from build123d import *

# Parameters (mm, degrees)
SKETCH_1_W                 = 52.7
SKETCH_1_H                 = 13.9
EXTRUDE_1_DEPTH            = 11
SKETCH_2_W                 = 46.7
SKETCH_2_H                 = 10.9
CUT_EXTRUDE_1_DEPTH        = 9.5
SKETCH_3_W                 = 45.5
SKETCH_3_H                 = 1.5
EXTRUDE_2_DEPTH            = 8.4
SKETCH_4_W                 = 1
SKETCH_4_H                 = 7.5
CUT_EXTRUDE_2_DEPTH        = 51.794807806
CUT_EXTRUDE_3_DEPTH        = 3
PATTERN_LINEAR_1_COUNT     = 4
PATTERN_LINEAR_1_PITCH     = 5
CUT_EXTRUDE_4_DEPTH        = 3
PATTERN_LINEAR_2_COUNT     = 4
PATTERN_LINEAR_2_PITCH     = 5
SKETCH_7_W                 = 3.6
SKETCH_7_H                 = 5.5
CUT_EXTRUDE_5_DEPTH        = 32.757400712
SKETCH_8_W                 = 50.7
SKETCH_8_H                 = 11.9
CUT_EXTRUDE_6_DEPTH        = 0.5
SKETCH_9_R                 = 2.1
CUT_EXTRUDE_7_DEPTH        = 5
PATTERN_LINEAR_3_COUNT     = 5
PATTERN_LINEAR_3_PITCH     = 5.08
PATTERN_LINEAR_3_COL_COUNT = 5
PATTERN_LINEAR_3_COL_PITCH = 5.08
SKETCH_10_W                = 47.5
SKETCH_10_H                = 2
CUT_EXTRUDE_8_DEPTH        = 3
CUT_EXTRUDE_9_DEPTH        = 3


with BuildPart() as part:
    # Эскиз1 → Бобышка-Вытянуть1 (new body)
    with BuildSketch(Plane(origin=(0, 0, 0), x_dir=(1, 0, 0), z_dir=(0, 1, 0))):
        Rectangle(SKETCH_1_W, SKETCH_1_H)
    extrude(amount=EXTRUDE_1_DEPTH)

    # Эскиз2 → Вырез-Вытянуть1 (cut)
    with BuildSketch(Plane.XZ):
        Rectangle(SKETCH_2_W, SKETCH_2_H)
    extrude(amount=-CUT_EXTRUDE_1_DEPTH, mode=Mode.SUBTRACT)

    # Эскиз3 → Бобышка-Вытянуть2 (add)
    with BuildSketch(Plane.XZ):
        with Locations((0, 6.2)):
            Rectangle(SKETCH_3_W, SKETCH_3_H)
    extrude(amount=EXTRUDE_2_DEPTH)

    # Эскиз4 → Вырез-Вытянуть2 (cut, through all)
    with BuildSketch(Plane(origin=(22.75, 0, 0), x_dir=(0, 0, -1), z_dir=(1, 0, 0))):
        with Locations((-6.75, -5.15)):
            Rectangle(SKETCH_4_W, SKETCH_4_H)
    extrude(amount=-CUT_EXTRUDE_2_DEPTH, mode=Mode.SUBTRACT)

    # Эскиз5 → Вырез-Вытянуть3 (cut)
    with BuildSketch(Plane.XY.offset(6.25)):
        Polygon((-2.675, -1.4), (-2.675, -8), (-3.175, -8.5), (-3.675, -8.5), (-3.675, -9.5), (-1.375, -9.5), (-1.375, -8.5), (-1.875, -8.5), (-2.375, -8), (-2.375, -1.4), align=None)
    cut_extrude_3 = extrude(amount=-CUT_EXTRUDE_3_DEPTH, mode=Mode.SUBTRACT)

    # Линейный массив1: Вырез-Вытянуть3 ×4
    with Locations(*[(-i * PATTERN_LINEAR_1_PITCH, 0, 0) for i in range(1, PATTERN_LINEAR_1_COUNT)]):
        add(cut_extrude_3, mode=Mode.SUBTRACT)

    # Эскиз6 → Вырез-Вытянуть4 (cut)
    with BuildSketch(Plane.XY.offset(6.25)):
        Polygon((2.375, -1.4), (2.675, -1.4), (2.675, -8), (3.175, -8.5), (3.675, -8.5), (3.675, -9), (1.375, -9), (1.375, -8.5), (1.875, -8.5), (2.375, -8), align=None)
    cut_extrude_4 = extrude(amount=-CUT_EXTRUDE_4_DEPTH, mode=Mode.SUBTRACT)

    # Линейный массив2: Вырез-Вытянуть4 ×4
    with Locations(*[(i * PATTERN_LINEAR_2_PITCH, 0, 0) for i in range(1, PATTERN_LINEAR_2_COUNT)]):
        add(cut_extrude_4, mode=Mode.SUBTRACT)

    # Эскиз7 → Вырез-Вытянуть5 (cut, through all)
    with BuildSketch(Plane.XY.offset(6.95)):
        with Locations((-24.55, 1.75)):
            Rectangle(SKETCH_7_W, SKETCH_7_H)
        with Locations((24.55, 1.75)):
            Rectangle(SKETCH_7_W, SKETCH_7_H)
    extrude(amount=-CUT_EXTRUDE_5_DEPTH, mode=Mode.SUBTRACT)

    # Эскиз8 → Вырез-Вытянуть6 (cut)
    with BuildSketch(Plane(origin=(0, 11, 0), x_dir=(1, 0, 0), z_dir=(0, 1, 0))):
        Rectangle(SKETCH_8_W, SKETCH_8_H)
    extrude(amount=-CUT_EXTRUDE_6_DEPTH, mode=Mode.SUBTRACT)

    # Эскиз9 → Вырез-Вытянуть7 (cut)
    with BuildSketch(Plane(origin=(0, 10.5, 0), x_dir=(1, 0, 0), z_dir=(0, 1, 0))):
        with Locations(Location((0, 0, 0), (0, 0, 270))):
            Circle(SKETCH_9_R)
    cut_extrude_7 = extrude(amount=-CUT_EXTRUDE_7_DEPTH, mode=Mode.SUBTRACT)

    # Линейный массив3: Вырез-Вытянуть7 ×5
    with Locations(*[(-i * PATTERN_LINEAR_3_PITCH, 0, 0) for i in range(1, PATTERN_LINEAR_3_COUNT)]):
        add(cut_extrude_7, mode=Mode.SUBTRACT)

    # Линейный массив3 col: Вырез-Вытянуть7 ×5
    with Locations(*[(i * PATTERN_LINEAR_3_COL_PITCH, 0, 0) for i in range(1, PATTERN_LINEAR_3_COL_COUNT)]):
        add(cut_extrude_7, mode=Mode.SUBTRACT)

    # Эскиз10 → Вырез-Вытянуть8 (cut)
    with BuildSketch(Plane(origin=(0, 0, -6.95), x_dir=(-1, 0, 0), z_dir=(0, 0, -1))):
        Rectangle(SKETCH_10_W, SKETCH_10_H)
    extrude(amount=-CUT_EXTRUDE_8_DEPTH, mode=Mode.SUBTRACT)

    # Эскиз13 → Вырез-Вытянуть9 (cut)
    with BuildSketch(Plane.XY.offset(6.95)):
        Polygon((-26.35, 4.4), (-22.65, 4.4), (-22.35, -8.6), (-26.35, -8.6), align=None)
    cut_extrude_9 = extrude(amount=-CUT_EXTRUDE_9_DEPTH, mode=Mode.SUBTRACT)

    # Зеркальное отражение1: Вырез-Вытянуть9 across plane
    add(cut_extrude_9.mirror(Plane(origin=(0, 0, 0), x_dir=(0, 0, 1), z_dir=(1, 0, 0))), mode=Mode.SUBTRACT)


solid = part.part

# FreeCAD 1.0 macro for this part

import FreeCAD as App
import Part
import Sketcher
from FreeCAD import Vector
Q = App.Units.Quantity


def add_polygon(sketch, points):
    """Adds a closed chain of lines whose ends are joined by coincident constraints."""
    first, n = sketch.GeometryCount, len(points)
    for a, b in zip(points, points[1:] + points[:1]):
        sketch.addGeometry(Part.LineSegment(App.Vector(*a, 0), App.Vector(*b, 0)), False)
    for i in range(n):
        sketch.addConstraint(Sketcher.Constraint("Coincident", first + i, 2, first + (i + 1) % n, 1))

doc = App.newDocument("Part")
params = doc.addObject("Spreadsheet::Sheet", "Params")
for row, (alias, value) in enumerate([
    ("sketch1_width", "52.7 mm"),
    ("sketch1_height", "13.9 mm"),
    ("pad1_length", "11 mm"),
    ("sketch2_width", "46.7 mm"),
    ("sketch2_height", "10.9 mm"),
    ("pocket1_length", "9.5 mm"),
    ("sketch3_width", "45.5 mm"),
    ("sketch3_height", "1.5 mm"),
    ("pad2_length", "8.4 mm"),
    ("sketch4_height", "1 mm"),
    ("sketch4_width", "7.5 mm"),
    ("sketch5_height", "1 mm"),
    ("sketch5_width", "0.5 mm"),
    ("sketch5_width2", "2.3 mm"),
    ("sketch5_width3", "0.3 mm"),
    ("sketch5_height2", "6.6 mm"),
    ("pocket3_length", "3 mm"),
    ("linearpattern_pitch", "5 mm"),
    ("sketch6_width", "0.3 mm"),
    ("sketch6_width2", "0.5 mm"),
    ("sketch6_width3", "2.3 mm"),
    ("sketch6_height", "6.6 mm"),
    ("pocket4_length", "3 mm"),
    ("linearpattern2_pitch", "5 mm"),
    ("sketch7_width", "3.6 mm"),
    ("sketch7_height", "5.5 mm"),
    ("sketch8_width", "50.7 mm"),
    ("sketch8_height", "11.9 mm"),
    ("pocket6_length", "0.5 mm"),
    ("sketch9_diameter", "4.2 mm"),
    ("pocket7_length", "5 mm"),
    ("linearpattern3_pitch", "5.08 mm"),
    ("linearpattern4_pitch", "5.08 mm"),
    ("sketch10_height", "2 mm"),
    ("sketch10_width", "47.5 mm"),
    ("pocket8_length", "3 mm"),
    ("sketch11_width", "4 mm"),
    ("sketch11_height", "13 mm"),
    ("sketch11_width2", "3.7 mm"),
    ("pocket9_length", "3 mm"),
], start=1):
    params.set(f"A{row}", alias)
    params.set(f"B{row}", "=" + value)
    params.setAlias(f"B{row}", alias)

body = doc.addObject("PartDesign::Body", "Body")

sketch1 = body.newObject("Sketcher::SketchObject", "Sketch")
sketch1.AttachmentSupport = (doc.getObject("XZ_Plane"), [""])
sketch1.MapMode = "FlatFace"
add_polygon(sketch1, [(-26, -7), (-26, 7), (26, 7), (26, -7)])
sketch1.addConstraint(Sketcher.Constraint("Vertical", 0))
sketch1.addConstraint(Sketcher.Constraint("Horizontal", 1))
sketch1.addConstraint(Sketcher.Constraint("Vertical", 2))
sketch1.addConstraint(Sketcher.Constraint("Horizontal", 3))
sketch1.addConstraint(Sketcher.Constraint("Symmetric", 0, 2, 2, 2, -1, 1))
sketch1.addConstraint(Sketcher.Constraint("DistanceX", 1, 1, 1, 2, Q("52.7 mm")))
sketch1.addConstraint(Sketcher.Constraint("DistanceY", 0, 1, 0, 2, Q("13.9 mm")))
sketch1.setExpression("Constraints[9]", "Params.sketch1_width")
sketch1.setExpression("Constraints[10]", "Params.sketch1_height")
pad1 = body.newObject("PartDesign::Pad", "Pad")
pad1.Profile = sketch1
pad1.setExpression("Length", "Params.pad1_length")
pad1.Reversed = True

sketch2 = body.newObject("Sketcher::SketchObject", "Sketch001")
sketch2.AttachmentSupport = (doc.getObject("XZ_Plane"), [""])
sketch2.MapMode = "FlatFace"
add_polygon(sketch2, [(-23, 5), (-23, -5), (23, -5), (23, 5)])
sketch2.addConstraint(Sketcher.Constraint("Vertical", 0))
sketch2.addConstraint(Sketcher.Constraint("Horizontal", 1))
sketch2.addConstraint(Sketcher.Constraint("Vertical", 2))
sketch2.addConstraint(Sketcher.Constraint("Horizontal", 3))
sketch2.addConstraint(Sketcher.Constraint("Symmetric", 0, 2, 2, 2, -1, 1))
sketch2.addConstraint(Sketcher.Constraint("DistanceX", 1, 1, 1, 2, Q("46.7 mm")))
sketch2.addConstraint(Sketcher.Constraint("DistanceY", 0, 2, 0, 1, Q("10.9 mm")))
sketch2.setExpression("Constraints[9]", "Params.sketch2_width")
sketch2.setExpression("Constraints[10]", "Params.sketch2_height")
pocket1 = body.newObject("PartDesign::Pocket", "Pocket")
pocket1.Profile = sketch2
pocket1.setExpression("Length", "Params.pocket1_length")

sketch3 = body.newObject("Sketcher::SketchObject", "Sketch002")
sketch3.AttachmentSupport = (doc.getObject("XZ_Plane"), [""])
sketch3.MapMode = "FlatFace"
add_polygon(sketch3, [(-22.8, 7), (-22.8, 5.5), (22.8, 5.5), (22.8, 7)])
sketch3.addConstraint(Sketcher.Constraint("Vertical", 0))
sketch3.addConstraint(Sketcher.Constraint("Horizontal", 1))
sketch3.addConstraint(Sketcher.Constraint("Vertical", 2))
sketch3.addConstraint(Sketcher.Constraint("Horizontal", 3))
sketch3.addConstraint(Sketcher.Constraint("DistanceX", 1, 1, 1, 2, Q("45.5 mm")))
sketch3.addConstraint(Sketcher.Constraint("DistanceY", 0, 2, 0, 1, Q("1.5 mm")))
sketch3.addConstraint(Sketcher.Constraint("DistanceX", 0, 2, -1, 1, Q("22.75 mm")))
sketch3.addConstraint(Sketcher.Constraint("DistanceY", -1, 1, 0, 2, Q("5.45 mm")))
sketch3.setExpression("Constraints[8]", "Params.sketch3_width")
sketch3.setExpression("Constraints[9]", "Params.sketch3_height")
pad2 = body.newObject("PartDesign::Pad", "Pad001")
pad2.Profile = sketch3
pad2.setExpression("Length", "Params.pad2_length")

sketch4 = body.newObject("Sketcher::SketchObject", "Sketch003")
sketch4.AttachmentSupport = (doc.getObject("YZ_Plane"), [""])
sketch4.MapMode = "FlatFace"
sketch4.AttachmentOffset = App.Placement(Vector(0, 0, 22.75), App.Rotation())
add_polygon(sketch4, [(-1.4, 7.2), (-8.9, 7.2), (-8.9, 6.2), (-1.4, 6.2)])
sketch4.addConstraint(Sketcher.Constraint("Horizontal", 0))
sketch4.addConstraint(Sketcher.Constraint("Vertical", 1))
sketch4.addConstraint(Sketcher.Constraint("Horizontal", 2))
sketch4.addConstraint(Sketcher.Constraint("Vertical", 3))
sketch4.addConstraint(Sketcher.Constraint("DistanceY", 1, 2, 1, 1, Q("1 mm")))
sketch4.addConstraint(Sketcher.Constraint("DistanceX", 0, 2, 0, 1, Q("7.5 mm")))
sketch4.addConstraint(Sketcher.Constraint("DistanceX", 0, 2, -1, 1, Q("8.9 mm")))
sketch4.addConstraint(Sketcher.Constraint("DistanceY", -1, 1, 0, 2, Q("7.25 mm")))
sketch4.setExpression("Constraints[8]", "Params.sketch4_height")
sketch4.setExpression("Constraints[9]", "Params.sketch4_width")
pocket2 = body.newObject("PartDesign::Pocket", "Pocket001")
pocket2.Profile = sketch4
pocket2.Type = "ThroughAll"

sketch5 = body.newObject("Sketcher::SketchObject", "Sketch004")
sketch5.AttachmentSupport = (doc.getObject("XY_Plane"), [""])
sketch5.MapMode = "FlatFace"
sketch5.AttachmentOffset = App.Placement(Vector(0, 0, 6.25), App.Rotation())
add_polygon(sketch5, [(-2.67, -1.4), (-2.67, -8), (-3.17, -8.5), (-3.67, -8.5), (-3.67, -9.5), (-1.38, -9.5), (-1.38, -8.5), (-1.88, -8.5), (-2.38, -8), (-2.38, -1.4)])
sketch5.addConstraint(Sketcher.Constraint("Vertical", 0))
sketch5.addConstraint(Sketcher.Constraint("Horizontal", 2))
sketch5.addConstraint(Sketcher.Constraint("Vertical", 3))
sketch5.addConstraint(Sketcher.Constraint("Horizontal", 4))
sketch5.addConstraint(Sketcher.Constraint("Vertical", 5))
sketch5.addConstraint(Sketcher.Constraint("Horizontal", 6))
sketch5.addConstraint(Sketcher.Constraint("Vertical", 8))
sketch5.addConstraint(Sketcher.Constraint("Horizontal", 9))
sketch5.addConstraint(Sketcher.Constraint("Perpendicular", 1, 7))
sketch5.addConstraint(Sketcher.Constraint("Horizontal", 2, 2, 5, 2))
sketch5.addConstraint(Sketcher.Constraint("Horizontal", 0, 2, 7, 2))
sketch5.addConstraint(Sketcher.Constraint("Equal", 2, 6))
sketch5.addConstraint(Sketcher.Constraint("Equal", 1, 7))
sketch5.addConstraint(Sketcher.Constraint("DistanceY", 3, 2, 3, 1, Q("1 mm")))
sketch5.addConstraint(Sketcher.Constraint("DistanceX", 2, 2, 2, 1, Q("0.5 mm")))
sketch5.addConstraint(Sketcher.Constraint("DistanceX", 4, 1, 4, 2, Q("2.3 mm")))
sketch5.addConstraint(Sketcher.Constraint("DistanceX", 9, 2, 9, 1, Q("0.3 mm")))
sketch5.addConstraint(Sketcher.Constraint("DistanceY", 0, 2, 0, 1, Q("6.6 mm")))
sketch5.addConstraint(Sketcher.Constraint("DistanceY", 0, 2, -1, 1, Q("8 mm")))
sketch5.addConstraint(Sketcher.Constraint("DistanceX", 0, 2, -1, 1, Q("2.675 mm")))
sketch5.setExpression("Constraints[23]", "Params.sketch5_height")
sketch5.setExpression("Constraints[24]", "Params.sketch5_width")
sketch5.setExpression("Constraints[25]", "Params.sketch5_width2")
sketch5.setExpression("Constraints[26]", "Params.sketch5_width3")
sketch5.setExpression("Constraints[27]", "Params.sketch5_height2")
pocket3 = body.newObject("PartDesign::Pocket", "Pocket002")
pocket3.Profile = sketch5
pocket3.setExpression("Length", "Params.pocket3_length")
doc.recompute()

linearpattern = body.newObject("PartDesign::LinearPattern", "LinearPattern")
linearpattern.Originals = [pocket3]
linearpattern.Direction = (doc.getObject("X_Axis"), [""])
linearpattern.Mode = "offset"
linearpattern.setExpression("Offset", "Params.linearpattern_pitch")
linearpattern.Occurrences = 4
linearpattern.Reversed = True
body.Tip = linearpattern

sketch6 = body.newObject("Sketcher::SketchObject", "Sketch005")
sketch6.AttachmentSupport = (doc.getObject("XY_Plane"), [""])
sketch6.MapMode = "FlatFace"
sketch6.AttachmentOffset = App.Placement(Vector(0, 0, 6.25), App.Rotation())
add_polygon(sketch6, [(2.67, -1.4), (2.38, -1.4), (2.38, -8), (1.88, -8.5), (1.38, -8.5), (1.38, -9), (3.67, -9), (3.67, -8.5), (3.17, -8.5), (2.67, -8)])
sketch6.addConstraint(Sketcher.Constraint("Horizontal", 0))
sketch6.addConstraint(Sketcher.Constraint("Vertical", 1))
sketch6.addConstraint(Sketcher.Constraint("Horizontal", 3))
sketch6.addConstraint(Sketcher.Constraint("Vertical", 4))
sketch6.addConstraint(Sketcher.Constraint("Horizontal", 5))
sketch6.addConstraint(Sketcher.Constraint("Vertical", 6))
sketch6.addConstraint(Sketcher.Constraint("Horizontal", 7))
sketch6.addConstraint(Sketcher.Constraint("Vertical", 9))
sketch6.addConstraint(Sketcher.Constraint("Perpendicular", 2, 8))
sketch6.addConstraint(Sketcher.Constraint("Horizontal", 3, 2, 6, 2))
sketch6.addConstraint(Sketcher.Constraint("Horizontal", 1, 2, 8, 2))
sketch6.addConstraint(Sketcher.Constraint("Equal", 3, 7))
sketch6.addConstraint(Sketcher.Constraint("Equal", 7, 4))
sketch6.addConstraint(Sketcher.Constraint("Equal", 2, 8))
sketch6.addConstraint(Sketcher.Constraint("DistanceX", 0, 2, 0, 1, Q("0.3 mm")))
sketch6.addConstraint(Sketcher.Constraint("DistanceX", 3, 2, 3, 1, Q("0.5 mm")))
sketch6.addConstraint(Sketcher.Constraint("DistanceX", 5, 1, 5, 2, Q("2.3 mm")))
sketch6.addConstraint(Sketcher.Constraint("DistanceY", 1, 2, 1, 1, Q("6.6 mm")))
sketch6.addConstraint(Sketcher.Constraint("DistanceY", 1, 2, -1, 1, Q("8 mm")))
sketch6.addConstraint(Sketcher.Constraint("DistanceX", -1, 1, 0, 2, Q("2.375 mm")))
sketch6.setExpression("Constraints[24]", "Params.sketch6_width")
sketch6.setExpression("Constraints[25]", "Params.sketch6_width2")
sketch6.setExpression("Constraints[26]", "Params.sketch6_width3")
sketch6.setExpression("Constraints[27]", "Params.sketch6_height")
pocket4 = body.newObject("PartDesign::Pocket", "Pocket003")
pocket4.Profile = sketch6
pocket4.setExpression("Length", "Params.pocket4_length")
doc.recompute()

linearpattern2 = body.newObject("PartDesign::LinearPattern", "LinearPattern001")
linearpattern2.Originals = [pocket4]
linearpattern2.Direction = (doc.getObject("X_Axis"), [""])
linearpattern2.Mode = "offset"
linearpattern2.setExpression("Offset", "Params.linearpattern2_pitch")
linearpattern2.Occurrences = 4
body.Tip = linearpattern2

sketch7 = body.newObject("Sketcher::SketchObject", "Sketch006")
sketch7.AttachmentSupport = (doc.getObject("XY_Plane"), [""])
sketch7.MapMode = "FlatFace"
sketch7.AttachmentOffset = App.Placement(Vector(0, 0, 6.95), App.Rotation())
add_polygon(sketch7, [(-26.4, 4.5), (-26.4, -1), (-22.8, -1), (-22.8, 4.5)])
add_polygon(sketch7, [(22.8, 4.5), (22.8, -1), (26.4, -1), (26.4, 4.5)])
sketch7.addConstraint(Sketcher.Constraint("Vertical", 0))
sketch7.addConstraint(Sketcher.Constraint("Horizontal", 1))
sketch7.addConstraint(Sketcher.Constraint("Vertical", 2))
sketch7.addConstraint(Sketcher.Constraint("Horizontal", 3))
sketch7.addConstraint(Sketcher.Constraint("Vertical", 4))
sketch7.addConstraint(Sketcher.Constraint("Horizontal", 5))
sketch7.addConstraint(Sketcher.Constraint("Vertical", 6))
sketch7.addConstraint(Sketcher.Constraint("Horizontal", 7))
sketch7.addConstraint(Sketcher.Constraint("Symmetric", 1, 2, 4, 2, -2))
sketch7.addConstraint(Sketcher.Constraint("Symmetric", 3, 2, 6, 2, -2))
sketch7.addConstraint(Sketcher.Constraint("DistanceX", 1, 1, 1, 2, Q("3.6 mm")))
sketch7.addConstraint(Sketcher.Constraint("DistanceY", 0, 2, 0, 1, Q("5.5 mm")))
sketch7.addConstraint(Sketcher.Constraint("DistanceY", 0, 2, -1, 1, Q("1 mm")))
sketch7.addConstraint(Sketcher.Constraint("DistanceX", 1, 2, 4, 2, Q("45.5 mm")))
sketch7.setExpression("Constraints[18]", "Params.sketch7_width")
sketch7.setExpression("Constraints[19]", "Params.sketch7_height")
pocket5 = body.newObject("PartDesign::Pocket", "Pocket004")
pocket5.Profile = sketch7
pocket5.Type = "ThroughAll"

sketch8 = body.newObject("Sketcher::SketchObject", "Sketch007")
sketch8.AttachmentSupport = (doc.getObject("XZ_Plane"), [""])
sketch8.MapMode = "FlatFace"
sketch8.AttachmentOffset = App.Placement(Vector(0, 0, -11), App.Rotation())
add_polygon(sketch8, [(-25, -6), (-25, 6), (25, 6), (25, -6)])
sketch8.addConstraint(Sketcher.Constraint("Vertical", 0))
sketch8.addConstraint(Sketcher.Constraint("Horizontal", 1))
sketch8.addConstraint(Sketcher.Constraint("Vertical", 2))
sketch8.addConstraint(Sketcher.Constraint("Horizontal", 3))
sketch8.addConstraint(Sketcher.Constraint("Symmetric", 0, 2, 2, 2, -1, 1))
sketch8.addConstraint(Sketcher.Constraint("DistanceX", 1, 1, 1, 2, Q("50.7 mm")))
sketch8.addConstraint(Sketcher.Constraint("DistanceY", 0, 1, 0, 2, Q("11.9 mm")))
sketch8.setExpression("Constraints[9]", "Params.sketch8_width")
sketch8.setExpression("Constraints[10]", "Params.sketch8_height")
pocket6 = body.newObject("PartDesign::Pocket", "Pocket005")
pocket6.Profile = sketch8
pocket6.setExpression("Length", "Params.pocket6_length")
pocket6.Reversed = True

sketch9 = body.newObject("Sketcher::SketchObject", "Sketch008")
sketch9.AttachmentSupport = (doc.getObject("XZ_Plane"), [""])
sketch9.MapMode = "FlatFace"
sketch9.AttachmentOffset = App.Placement(Vector(0, 0, -10.5), App.Rotation())
sketch9.addGeometry(Part.Circle(Vector(0, 0, 0), Vector(0, 0, 1), 2.1), False)
sketch9.addConstraint(Sketcher.Constraint("Coincident", 0, 3, -1, 1))
sketch9.addConstraint(Sketcher.Constraint("Diameter", 0, Q("4.2 mm")))
sketch9.setExpression("Constraints[1]", "Params.sketch9_diameter")
pocket7 = body.newObject("PartDesign::Pocket", "Pocket006")
pocket7.Profile = sketch9
pocket7.setExpression("Length", "Params.pocket7_length")
pocket7.Reversed = True
doc.recompute()

linearpattern3 = body.newObject("PartDesign::LinearPattern", "LinearPattern002")
linearpattern3.Originals = [pocket7]
linearpattern3.Direction = (doc.getObject("X_Axis"), [""])
linearpattern3.Mode = "offset"
linearpattern3.setExpression("Offset", "Params.linearpattern3_pitch")
linearpattern3.Occurrences = 5
linearpattern3.Reversed = True
body.Tip = linearpattern3
doc.recompute()

linearpattern4 = body.newObject("PartDesign::LinearPattern", "LinearPattern003")
linearpattern4.Originals = [pocket7]
linearpattern4.Direction = (doc.getObject("X_Axis"), [""])
linearpattern4.Mode = "offset"
linearpattern4.setExpression("Offset", "Params.linearpattern4_pitch")
linearpattern4.Occurrences = 5
body.Tip = linearpattern4

sketch10 = body.newObject("Sketcher::SketchObject", "Sketch009")
sketch10.AttachmentSupport = (doc.getObject("XY_Plane"), [""])
sketch10.MapMode = "FlatFace"
sketch10.AttachmentOffset = App.Placement(Vector(0, 0, -6.95), App.Rotation())
add_polygon(sketch10, [(23.8, 1), (23.8, -1), (-23.8, -1), (-23.8, 1)])
sketch10.addConstraint(Sketcher.Constraint("Vertical", 0))
sketch10.addConstraint(Sketcher.Constraint("Horizontal", 1))
sketch10.addConstraint(Sketcher.Constraint("Vertical", 2))
sketch10.addConstraint(Sketcher.Constraint("Horizontal", 3))
sketch10.addConstraint(Sketcher.Constraint("Symmetric", 0, 2, 2, 2, -1, 1))
sketch10.addConstraint(Sketcher.Constraint("DistanceY", 0, 2, 0, 1, Q("2 mm")))
sketch10.addConstraint(Sketcher.Constraint("DistanceX", 1, 2, 1, 1, Q("47.5 mm")))
sketch10.setExpression("Constraints[9]", "Params.sketch10_height")
sketch10.setExpression("Constraints[10]", "Params.sketch10_width")
pocket8 = body.newObject("PartDesign::Pocket", "Pocket007")
pocket8.Profile = sketch10
pocket8.setExpression("Length", "Params.pocket8_length")
pocket8.Reversed = True

sketch11 = body.newObject("Sketcher::SketchObject", "Sketch010")
sketch11.AttachmentSupport = (doc.getObject("XY_Plane"), [""])
sketch11.MapMode = "FlatFace"
sketch11.AttachmentOffset = App.Placement(Vector(0, 0, 6.95), App.Rotation())
add_polygon(sketch11, [(-22.6, 4.4), (-26.4, 4.4), (-26.4, -8.6), (-22.4, -8.6)])
sketch11.addConstraint(Sketcher.Constraint("Horizontal", 0))
sketch11.addConstraint(Sketcher.Constraint("Vertical", 1))
sketch11.addConstraint(Sketcher.Constraint("Horizontal", 2))
sketch11.addConstraint(Sketcher.Constraint("DistanceX", 2, 1, 2, 2, Q("4 mm")))
sketch11.addConstraint(Sketcher.Constraint("DistanceY", 1, 2, 1, 1, Q("13 mm")))
sketch11.addConstraint(Sketcher.Constraint("DistanceX", 0, 2, 0, 1, Q("3.7 mm")))
sketch11.addConstraint(Sketcher.Constraint("DistanceY", -1, 1, 0, 2, Q("4.4 mm")))
sketch11.addConstraint(Sketcher.Constraint("DistanceX", 0, 2, -1, 1, Q("26.35 mm")))
sketch11.setExpression("Constraints[7]", "Params.sketch11_width")
sketch11.setExpression("Constraints[8]", "Params.sketch11_height")
sketch11.setExpression("Constraints[9]", "Params.sketch11_width2")
pocket9 = body.newObject("PartDesign::Pocket", "Pocket008")
pocket9.Profile = sketch11
pocket9.setExpression("Length", "Params.pocket9_length")
doc.recompute()

mirrored = body.newObject("PartDesign::Mirrored", "Mirrored")
mirrored.Originals = [pocket9]
mirrored.MirrorPlane = (doc.getObject("YZ_Plane"), [""])
body.Tip = mirrored

doc.recompute()
